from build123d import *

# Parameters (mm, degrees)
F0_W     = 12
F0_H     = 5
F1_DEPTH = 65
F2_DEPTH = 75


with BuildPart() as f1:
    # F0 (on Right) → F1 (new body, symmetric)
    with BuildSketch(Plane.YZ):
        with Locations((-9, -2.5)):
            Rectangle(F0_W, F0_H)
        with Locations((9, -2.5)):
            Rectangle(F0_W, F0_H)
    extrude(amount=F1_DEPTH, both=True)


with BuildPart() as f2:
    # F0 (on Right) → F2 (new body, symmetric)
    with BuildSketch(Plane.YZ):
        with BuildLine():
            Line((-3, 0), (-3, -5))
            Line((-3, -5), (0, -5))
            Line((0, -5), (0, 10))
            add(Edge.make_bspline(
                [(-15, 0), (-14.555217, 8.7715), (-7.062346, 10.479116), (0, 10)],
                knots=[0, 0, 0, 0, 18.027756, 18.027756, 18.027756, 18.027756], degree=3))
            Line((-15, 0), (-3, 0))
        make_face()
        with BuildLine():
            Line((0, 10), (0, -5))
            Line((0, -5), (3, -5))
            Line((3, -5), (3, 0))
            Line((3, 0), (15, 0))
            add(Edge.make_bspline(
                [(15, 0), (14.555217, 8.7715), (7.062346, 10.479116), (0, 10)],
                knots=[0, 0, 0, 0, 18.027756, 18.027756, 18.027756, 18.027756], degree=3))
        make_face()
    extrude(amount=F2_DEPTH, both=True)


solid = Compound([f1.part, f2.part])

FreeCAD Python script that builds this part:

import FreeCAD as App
import Part
import Sketcher
from FreeCAD import Vector

doc = App.newDocument("Part")
body = doc.addObject("PartDesign::Body", "Body")
body.AllowCompound = True

# Sketch on YZ plane
sketch1 = body.newObject("Sketcher::SketchObject", "Sketch")
sketch1.AttachmentSupport = (doc.getObject("YZ_Plane"), [""])
sketch1.MapMode = "FlatFace"
sketch1.addGeometry(Part.LineSegment(Vector(-15, 0, 0), Vector(-15, -5, 0)), False)
sketch1.addGeometry(Part.LineSegment(Vector(-15, -5, 0), Vector(-3, -5, 0)), False)
sketch1.addGeometry(Part.LineSegment(Vector(-3, -5, 0), Vector(-3, 0, 0)), False)
sketch1.addGeometry(Part.LineSegment(Vector(-3, 0, 0), Vector(-15, 0, 0)), False)
sketch1.addGeometry(Part.LineSegment(Vector(3, 0, 0), Vector(3, -5, 0)), False)
sketch1.addGeometry(Part.LineSegment(Vector(3, -5, 0), Vector(15, -5, 0)), False)
sketch1.addGeometry(Part.LineSegment(Vector(15, -5, 0), Vector(15, 0, 0)), False)
sketch1.addGeometry(Part.LineSegment(Vector(15, 0, 0), Vector(3, 0, 0)), False)
sketch1.addConstraint(Sketcher.Constraint("Coincident", 0, 2, 1, 1))
sketch1.addConstraint(Sketcher.Constraint("Coincident", 1, 2, 2, 1))
sketch1.addConstraint(Sketcher.Constraint("Coincident", 2, 2, 3, 1))
sketch1.addConstraint(Sketcher.Constraint("Coincident", 3, 2, 0, 1))
sketch1.addConstraint(Sketcher.Constraint("Coincident", 4, 2, 5, 1))
sketch1.addConstraint(Sketcher.Constraint("Coincident", 5, 2, 6, 1))
sketch1.addConstraint(Sketcher.Constraint("Coincident", 6, 2, 7, 1))
sketch1.addConstraint(Sketcher.Constraint("Coincident", 7, 2, 4, 1))
sketch1.addConstraint(Sketcher.Constraint("Vertical", 0))
sketch1.addConstraint(Sketcher.Constraint("Horizontal", 1))
sketch1.addConstraint(Sketcher.Constraint("Vertical", 2))
sketch1.addConstraint(Sketcher.Constraint("Horizontal", 3))
sketch1.addConstraint(Sketcher.Constraint("Vertical", 4))
sketch1.addConstraint(Sketcher.Constraint("Horizontal", 5))
sketch1.addConstraint(Sketcher.Constraint("Vertical", 6))
sketch1.addConstraint(Sketcher.Constraint("Horizontal", 7))
sketch1.addConstraint(Sketcher.Constraint("Symmetric", 3, 2, 6, 2, -1, 1))
sketch1.addConstraint(Sketcher.Constraint("Symmetric", 1, 2, 4, 2, -2))
sketch1.addConstraint(Sketcher.Constraint("PointOnObject", 2, 2, -1))
sketch1.addConstraint(Sketcher.Constraint("DistanceX", 1, 1, 1, 2, 12.0))
sketch1.addConstraint(Sketcher.Constraint("DistanceY", 0, 2, 0, 1, 5.0))
sketch1.addConstraint(Sketcher.Constraint("DistanceX", 0, 2, -1, 1, 15.0))
pad1 = body.newObject("PartDesign::Pad", "Pad")
pad1.Profile = sketch1
pad1.Length = 130
pad1.Midplane = True
body2 = doc.addObject("PartDesign::Body", "Body001")

# Sketch on YZ plane
sketch2 = body2.newObject("Sketcher::SketchObject", "Sketch001")
sketch2.AttachmentSupport = (doc.getObject("YZ_Plane001"), [""])
sketch2.MapMode = "FlatFace"
sketch2.addGeometry(Part.LineSegment(Vector(-3, 0, 0), Vector(-3, -5, 0)), False)
sketch2.addGeometry(Part.LineSegment(Vector(-3, -5, 0), Vector(3, -5, 0)), False)
sketch2.addGeometry(Part.LineSegment(Vector(3, -5, 0), Vector(3, 0, 0)), False)
sketch2.addGeometry(Part.LineSegment(Vector(3, 0, 0), Vector(15, 0, 0)), False)
sketch2.addGeometry(Part.BSplineCurve([Vector(15, 0, 0), Vector(14.555217, 8.7715, 0), Vector(7.062346, 10.479116, 0), Vector(0, 10, 0)], [4, 4], [0, 18.027756], False, 3, [1, 1, 1, 1], False), False)
sketch2.addGeometry(Part.BSplineCurve([Vector(-15, 0, 0), Vector(-14.555217, 8.7715, 0), Vector(-7.062346, 10.479116, 0), Vector(0, 10, 0)], [4, 4], [0, 18.027756], False, 3, [1, 1, 1, 1], False), False)
sketch2.addGeometry(Part.LineSegment(Vector(-15, 0, 0), Vector(-3, 0, 0)), False)
sketch2.addConstraint(Sketcher.Constraint("Block", 4))
sketch2.addConstraint(Sketcher.Constraint("Block", 5))
sketch2.addConstraint(Sketcher.Constraint("Coincident", 0, 2, 1, 1))
sketch2.addConstraint(Sketcher.Constraint("Coincident", 1, 2, 2, 1))
sketch2.addConstraint(Sketcher.Constraint("Coincident", 2, 2, 3, 1))
sketch2.addConstraint(Sketcher.Constraint("Coincident", 3, 2, 4, 1))
sketch2.addConstraint(Sketcher.Constraint("Coincident", 5, 1, 6, 1))
sketch2.addConstraint(Sketcher.Constraint("Coincident", 6, 2, 0, 1))
sketch2.addConstraint(Sketcher.Constraint("Vertical", 0))
sketch2.addConstraint(Sketcher.Constraint("Horizontal", 1))
sketch2.addConstraint(Sketcher.Constraint("Vertical", 2))
sketch2.addConstraint(Sketcher.Constraint("Horizontal", 3))
sketch2.addConstraint(Sketcher.Constraint("Horizontal", 6))
sketch2.addConstraint(Sketcher.Constraint("Equal", 3, 6))
sketch2.addConstraint(Sketcher.Constraint("DistanceX", 1, 1, 1, 2, 6.0))
sketch2.addConstraint(Sketcher.Constraint("DistanceY", 0, 2, 0, 1, 5.0))
pad2 = body2.newObject("PartDesign::Pad", "Pad001")
pad2.Profile = sketch2
pad2.Length = 150
pad2.Midplane = True

doc.recompute()
